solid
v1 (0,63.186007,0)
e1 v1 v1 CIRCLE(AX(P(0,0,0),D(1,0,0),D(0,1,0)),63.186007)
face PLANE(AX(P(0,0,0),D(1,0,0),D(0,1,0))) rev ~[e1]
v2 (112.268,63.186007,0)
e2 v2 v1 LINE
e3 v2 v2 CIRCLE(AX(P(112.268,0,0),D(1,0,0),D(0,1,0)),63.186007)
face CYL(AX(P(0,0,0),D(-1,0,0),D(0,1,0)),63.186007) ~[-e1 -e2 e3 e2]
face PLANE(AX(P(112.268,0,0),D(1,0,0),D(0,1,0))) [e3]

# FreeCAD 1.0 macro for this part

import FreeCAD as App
import Part
import Sketcher

V = App.Vector
Q = App.Units.Quantity

doc = App.newDocument("Part")
body = doc.addObject("PartDesign::Body", "Body")

sketch1 = doc.addObject("Sketcher::SketchObject", "Sketch")
body.addObject(sketch1)
sketch1.AttachmentSupport = (doc.YZ_Plane, [""])
sketch1.MapMode = "FlatFace"
sketch1.addGeometry(Part.Circle(V(0, 0, 0), V(0, 0, 1), 63), False)
sketch1.addConstraint([
    Sketcher.Constraint("Coincident", 0, 3, -1, 1),
    Sketcher.Constraint("Diameter", 0, Q("126.372014 mm")),
])
pad1 = doc.addObject("PartDesign::Pad", "Pad")
body.addObject(pad1)
pad1.Profile = sketch1
pad1.Length = Q("1 in")

sketch2 = doc.addObject("Sketcher::SketchObject", "Sketch001")
body.addObject(sketch2)
sketch2.AttachmentSupport = (doc.YZ_Plane, [""])
sketch2.MapMode = "FlatFace"
sketch2.addGeometry(Part.Circle(V(0, 0, 0), V(0, 0, 1), 63), False)
sketch2.addConstraint([
    Sketcher.Constraint("Coincident", 0, 3, -1, 1),
    Sketcher.Constraint("Diameter", 0, Q("126.372014 mm")),
])
pad2 = doc.addObject("PartDesign::Pad", "Pad001")
body.addObject(pad2)
pad2.Profile = sketch2
pad2.Length = Q("4.42 in")

doc.recompute()
